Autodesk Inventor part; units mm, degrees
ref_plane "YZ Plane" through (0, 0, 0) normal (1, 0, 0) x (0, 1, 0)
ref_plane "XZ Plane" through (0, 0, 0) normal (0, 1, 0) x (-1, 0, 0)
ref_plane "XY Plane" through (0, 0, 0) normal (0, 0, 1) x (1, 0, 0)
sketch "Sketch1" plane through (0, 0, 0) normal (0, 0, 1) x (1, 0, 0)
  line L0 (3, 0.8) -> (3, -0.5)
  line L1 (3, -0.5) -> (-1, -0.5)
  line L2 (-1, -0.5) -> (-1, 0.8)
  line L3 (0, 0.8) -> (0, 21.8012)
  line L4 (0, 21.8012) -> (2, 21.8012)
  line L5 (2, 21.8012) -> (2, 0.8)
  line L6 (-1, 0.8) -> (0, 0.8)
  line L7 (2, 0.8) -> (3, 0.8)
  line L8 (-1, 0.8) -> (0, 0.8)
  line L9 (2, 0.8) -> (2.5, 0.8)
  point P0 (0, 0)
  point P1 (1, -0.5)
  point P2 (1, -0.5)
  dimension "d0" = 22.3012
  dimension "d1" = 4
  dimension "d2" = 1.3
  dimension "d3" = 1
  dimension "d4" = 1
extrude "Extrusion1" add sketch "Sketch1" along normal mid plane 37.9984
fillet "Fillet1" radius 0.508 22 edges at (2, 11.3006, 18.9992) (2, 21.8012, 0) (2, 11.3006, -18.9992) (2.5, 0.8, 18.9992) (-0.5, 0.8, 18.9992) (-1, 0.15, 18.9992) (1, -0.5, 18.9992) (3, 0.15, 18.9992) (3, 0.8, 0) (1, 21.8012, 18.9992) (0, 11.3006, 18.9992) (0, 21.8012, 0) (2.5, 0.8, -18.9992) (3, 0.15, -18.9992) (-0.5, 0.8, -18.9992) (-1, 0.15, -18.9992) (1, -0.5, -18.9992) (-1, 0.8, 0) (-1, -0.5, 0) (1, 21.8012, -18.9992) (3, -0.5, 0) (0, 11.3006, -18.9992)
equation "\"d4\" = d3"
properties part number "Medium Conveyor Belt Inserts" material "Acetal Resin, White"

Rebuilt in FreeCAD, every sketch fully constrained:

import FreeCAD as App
import Part
import Sketcher

V = App.Vector


def edges_at(feature, points):
    """Names of the edges that pass closest to the given points."""
    edges = feature.Shape.Edges
    near = lambda p: min(range(len(edges)), key=lambda i: edges[i].distToShape(Part.Vertex(*p))[0])
    return sorted({f"Edge{near(p) + 1}" for p in points})

doc = App.newDocument("Part")
body = doc.addObject("PartDesign::Body", "Body")

sketch1 = body.newObject("Sketcher::SketchObject", "Sketch")
sketch1.AttachmentSupport = (doc.getObject("XY_Plane"), [""])
sketch1.MapMode = "FlatFace"
sketch1.addGeometry(Part.LineSegment(V(3, -0.5, 0), V(3, 0.8, 0)), False)
sketch1.addGeometry(Part.LineSegment(V(3, 0.8, 0), V(2, 0.8, 0)), False)
sketch1.addGeometry(Part.LineSegment(V(2, 0.8, 0), V(2, 21.8, 0)), False)
sketch1.addGeometry(Part.LineSegment(V(2, 21.8, 0), V(0, 21.8, 0)), False)
sketch1.addGeometry(Part.LineSegment(V(0, 21.8, 0), V(0, 0.8, 0)), False)
sketch1.addGeometry(Part.LineSegment(V(0, 0.8, 0), V(-1, 0.8, 0)), False)
sketch1.addGeometry(Part.LineSegment(V(-1, 0.8, 0), V(-1, -0.5, 0)), False)
sketch1.addGeometry(Part.LineSegment(V(-1, -0.5, 0), V(3, -0.5, 0)), False)
sketch1.addConstraint(Sketcher.Constraint("Coincident", 0, 2, 1, 1))
sketch1.addConstraint(Sketcher.Constraint("Coincident", 1, 2, 2, 1))
sketch1.addConstraint(Sketcher.Constraint("Coincident", 2, 2, 3, 1))
sketch1.addConstraint(Sketcher.Constraint("Coincident", 3, 2, 4, 1))
sketch1.addConstraint(Sketcher.Constraint("Coincident", 4, 2, 5, 1))
sketch1.addConstraint(Sketcher.Constraint("Coincident", 5, 2, 6, 1))
sketch1.addConstraint(Sketcher.Constraint("Coincident", 6, 2, 7, 1))
sketch1.addConstraint(Sketcher.Constraint("Coincident", 7, 2, 0, 1))
sketch1.addConstraint(Sketcher.Constraint("Vertical", 0))
sketch1.addConstraint(Sketcher.Constraint("Horizontal", 1))
sketch1.addConstraint(Sketcher.Constraint("Vertical", 2))
sketch1.addConstraint(Sketcher.Constraint("Horizontal", 3))
sketch1.addConstraint(Sketcher.Constraint("Vertical", 4))
sketch1.addConstraint(Sketcher.Constraint("Horizontal", 5))
sketch1.addConstraint(Sketcher.Constraint("Vertical", 6))
sketch1.addConstraint(Sketcher.Constraint("Horizontal", 7))
sketch1.addConstraint(Sketcher.Constraint("PointOnObject", 3, 2, -2))
sketch1.addConstraint(Sketcher.Constraint("Horizontal", 1, 2, 4, 2))
sketch1.addConstraint(Sketcher.Constraint("Equal", 1, 5))
sketch1.addConstraint(Sketcher.Constraint("DistanceX", 1, 2, 1, 1, 1.0))
sketch1.addConstraint(Sketcher.Constraint("DistanceX", 7, 1, 7, 2, 4.0))
sketch1.addConstraint(Sketcher.Constraint("DistanceY", 0, 1, 0, 2, 1.3))
sketch1.addConstraint(Sketcher.Constraint("DistanceY", -1, 1, 0, 2, 0.8))
sketch1.addConstraint(Sketcher.Constraint("DistanceY", 6, 2, 3, 2, 22.3012))
pad1 = body.newObject("PartDesign::Pad", "Pad")
pad1.Profile = sketch1
pad1.Length = 37.9984
pad1.Midplane = True
doc.recompute()

fillet = body.newObject("PartDesign::Fillet", "Fillet")
fillet.Base = (pad1, edges_at(pad1, [
    (2, 11.301, 18.999),
    (2, 21.801, 0),
    (2, 11.301, -18.999),
    (2.5, 0.8, 18.999),
    (-0.5, 0.8, 18.999),
    (-1, 0.15, 18.999),
    (1, -0.5, 18.999),
    (3, 0.15, 18.999),
    (3, 0.8, 0),
    (1, 21.801, 18.999),
    (0, 11.301, 18.999),
    (0, 21.801, 0),
    (2.5, 0.8, -18.999),
    (3, 0.15, -18.999),
    (-0.5, 0.8, -18.999),
    (-1, 0.15, -18.999),
    (1, -0.5, -18.999),
    (-1, 0.8, 0),
    (-1, -0.5, 0),
    (1, 21.801, -18.999),
    (3, -0.5, 0),
    (0, 11.301, -18.999),
]))
fillet.Radius = 0.508

doc.recompute()
